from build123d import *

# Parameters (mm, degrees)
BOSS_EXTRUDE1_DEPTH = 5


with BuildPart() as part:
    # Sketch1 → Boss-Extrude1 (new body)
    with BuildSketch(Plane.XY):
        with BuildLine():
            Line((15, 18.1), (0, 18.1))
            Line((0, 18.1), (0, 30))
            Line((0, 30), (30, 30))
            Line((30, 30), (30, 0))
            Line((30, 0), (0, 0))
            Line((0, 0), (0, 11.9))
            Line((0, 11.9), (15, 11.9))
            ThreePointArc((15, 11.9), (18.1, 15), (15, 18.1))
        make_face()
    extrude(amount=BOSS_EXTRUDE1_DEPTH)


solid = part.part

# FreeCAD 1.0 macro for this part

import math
import FreeCAD as App
import Part
import Sketcher
from FreeCAD import Vector

doc = App.newDocument("Part")
body = doc.addObject("PartDesign::Body", "Body")

sketch1 = doc.addObject("Sketcher::SketchObject", "Sketch")
body.addObject(sketch1)
sketch1.AttachmentSupport = (doc.XY_Plane, [""])
sketch1.MapMode = "FlatFace"
sketch1.addGeometry(Part.LineSegment(Vector(0, 18.1, 0), Vector(15, 18.1, 0)), False)
sketch1.addGeometry(Part.ArcOfCircle(Part.Circle(Vector(15, 15, 0), Vector(0, 0, 1), 3.1), math.radians(-90), math.radians(90)), False)
sketch1.addGeometry(Part.LineSegment(Vector(15, 11.9, 0), Vector(0, 11.9, 0)), False)
sketch1.addGeometry(Part.LineSegment(Vector(0, 11.9, 0), Vector(0, 0, 0)), False)
sketch1.addGeometry(Part.LineSegment(Vector(0, 0, 0), Vector(30, 0, 0)), False)
sketch1.addGeometry(Part.LineSegment(Vector(30, 0, 0), Vector(30, 30, 0)), False)
sketch1.addGeometry(Part.LineSegment(Vector(30, 30, 0), Vector(0, 30, 0)), False)
sketch1.addGeometry(Part.LineSegment(Vector(0, 30, 0), Vector(0, 18.1, 0)), False)
sketch1.addConstraint(Sketcher.Constraint("Tangent", 0, 2, 1, 2))
sketch1.addConstraint(Sketcher.Constraint("Tangent", 1, 1, 2, 1))
sketch1.addConstraint(Sketcher.Constraint("Coincident", 2, 2, 3, 1))
sketch1.addConstraint(Sketcher.Constraint("Coincident", 3, 2, 4, 1))
sketch1.addConstraint(Sketcher.Constraint("Coincident", 4, 2, 5, 1))
sketch1.addConstraint(Sketcher.Constraint("Coincident", 5, 2, 6, 1))
sketch1.addConstraint(Sketcher.Constraint("Coincident", 6, 2, 7, 1))
sketch1.addConstraint(Sketcher.Constraint("Coincident", 7, 2, 0, 1))
sketch1.addConstraint(Sketcher.Constraint("Horizontal", 0))
sketch1.addConstraint(Sketcher.Constraint("Horizontal", 2))
sketch1.addConstraint(Sketcher.Constraint("Vertical", 3))
sketch1.addConstraint(Sketcher.Constraint("Horizontal", 4))
sketch1.addConstraint(Sketcher.Constraint("Vertical", 5))
sketch1.addConstraint(Sketcher.Constraint("Horizontal", 6))
sketch1.addConstraint(Sketcher.Constraint("Vertical", 7))
sketch1.addConstraint(Sketcher.Constraint("Coincident", 3, 2, -1, 1))
sketch1.addConstraint(Sketcher.Constraint("PointOnObject", 6, 2, -2))
sketch1.addConstraint(Sketcher.Constraint("Equal", 6, 5))
sketch1.addConstraint(Sketcher.Constraint("Equal", 3, 7))
sketch1.addConstraint(Sketcher.Constraint("Radius", 1, 3.1))
sketch1.addConstraint(Sketcher.Constraint("DistanceX", 0, 1, 0, 2, 15.0))
sketch1.addConstraint(Sketcher.Constraint("DistanceX", 4, 1, 4, 2, 30.0))
pad1 = doc.addObject("PartDesign::Pad", "Pad")
body.addObject(pad1)
pad1.Profile = sketch1
pad1.Length = 5

doc.recompute()
